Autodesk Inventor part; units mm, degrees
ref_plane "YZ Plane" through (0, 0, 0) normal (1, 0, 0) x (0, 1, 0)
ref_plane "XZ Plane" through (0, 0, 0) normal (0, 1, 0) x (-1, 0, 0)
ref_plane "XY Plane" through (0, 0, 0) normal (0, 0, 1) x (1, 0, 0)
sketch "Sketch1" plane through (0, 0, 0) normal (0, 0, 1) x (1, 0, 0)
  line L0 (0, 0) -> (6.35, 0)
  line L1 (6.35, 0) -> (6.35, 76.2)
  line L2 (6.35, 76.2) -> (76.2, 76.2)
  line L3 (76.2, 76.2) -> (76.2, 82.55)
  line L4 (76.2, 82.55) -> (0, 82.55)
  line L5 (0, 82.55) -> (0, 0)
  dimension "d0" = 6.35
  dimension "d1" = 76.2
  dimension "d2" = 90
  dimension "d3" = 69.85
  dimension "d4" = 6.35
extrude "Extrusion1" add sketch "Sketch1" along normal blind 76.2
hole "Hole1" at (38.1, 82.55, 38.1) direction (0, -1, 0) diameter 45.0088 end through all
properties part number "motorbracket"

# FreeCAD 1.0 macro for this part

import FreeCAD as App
import Part
import Sketcher
from FreeCAD import Vector
Q = App.Units.Quantity


def add_polygon(sketch, points):
    """Adds a closed chain of lines whose ends are joined by coincident constraints."""
    first, n = sketch.GeometryCount, len(points)
    for a, b in zip(points, points[1:] + points[:1]):
        sketch.addGeometry(Part.LineSegment(App.Vector(*a, 0), App.Vector(*b, 0)), False)
    for i in range(n):
        sketch.addConstraint(Sketcher.Constraint("Coincident", first + i, 2, first + (i + 1) % n, 1))

doc = App.newDocument("Part")
body = doc.addObject("PartDesign::Body", "Body")

sketch1 = doc.addObject("Sketcher::SketchObject", "Sketch")
body.addObject(sketch1)
sketch1.AttachmentSupport = (doc.XY_Plane, [""])
sketch1.MapMode = "FlatFace"
add_polygon(sketch1, [(0, 83), (0, 0), (6, 0), (6, 76), (76, 76), (76, 83)])
sketch1.addConstraint([
    Sketcher.Constraint("Vertical", 0),
    Sketcher.Constraint("Horizontal", 1),
    Sketcher.Constraint("Vertical", 2),
    Sketcher.Constraint("Horizontal", 3),
    Sketcher.Constraint("Vertical", 4),
    Sketcher.Constraint("Horizontal", 5),
    Sketcher.Constraint("Coincident", 0, 2, -1, 1),
    Sketcher.Constraint("Equal", 5, 2),
    Sketcher.Constraint("Equal", 1, 4),
    Sketcher.Constraint("DistanceX", 5, 2, 5, 1, Q("3 in")),
    Sketcher.Constraint("DistanceX", 1, 1, 1, 2, Q("0.25 in")),
])
pad1 = doc.addObject("PartDesign::Pad", "Pad")
body.addObject(pad1)
pad1.Profile = sketch1
pad1.Length = Q("3 in")

sketch2 = doc.addObject("Sketcher::SketchObject", "Sketch001")
body.addObject(sketch2)
sketch2.AttachmentSupport = (doc.XZ_Plane, [""])
sketch2.MapMode = "FlatFace"
sketch2.AttachmentOffset = App.Placement(Vector(0, 0, -3.25 * 25.4), App.Rotation())
sketch2.addGeometry(Part.Circle(Vector(38, 38, 0), Vector(0, 0, 1), 23), False)
sketch2.addConstraint([
    Sketcher.Constraint("Diameter", 0, Q("1.772 in")),
    Sketcher.Constraint("DistanceX", -1, 1, 0, 3, Q("1.5 in")),
    Sketcher.Constraint("DistanceY", -1, 1, 0, 3, Q("1.5 in")),
])
doc.recompute()
hole = doc.addObject("PartDesign::Hole", "Hole")
body.addObject(hole)
hole.Profile = sketch2
hole.ThreadType = "None"
hole.Diameter = Q("1.772 in")
hole.DepthType = "ThroughAll"
hole.Reversed = True

doc.recompute()
